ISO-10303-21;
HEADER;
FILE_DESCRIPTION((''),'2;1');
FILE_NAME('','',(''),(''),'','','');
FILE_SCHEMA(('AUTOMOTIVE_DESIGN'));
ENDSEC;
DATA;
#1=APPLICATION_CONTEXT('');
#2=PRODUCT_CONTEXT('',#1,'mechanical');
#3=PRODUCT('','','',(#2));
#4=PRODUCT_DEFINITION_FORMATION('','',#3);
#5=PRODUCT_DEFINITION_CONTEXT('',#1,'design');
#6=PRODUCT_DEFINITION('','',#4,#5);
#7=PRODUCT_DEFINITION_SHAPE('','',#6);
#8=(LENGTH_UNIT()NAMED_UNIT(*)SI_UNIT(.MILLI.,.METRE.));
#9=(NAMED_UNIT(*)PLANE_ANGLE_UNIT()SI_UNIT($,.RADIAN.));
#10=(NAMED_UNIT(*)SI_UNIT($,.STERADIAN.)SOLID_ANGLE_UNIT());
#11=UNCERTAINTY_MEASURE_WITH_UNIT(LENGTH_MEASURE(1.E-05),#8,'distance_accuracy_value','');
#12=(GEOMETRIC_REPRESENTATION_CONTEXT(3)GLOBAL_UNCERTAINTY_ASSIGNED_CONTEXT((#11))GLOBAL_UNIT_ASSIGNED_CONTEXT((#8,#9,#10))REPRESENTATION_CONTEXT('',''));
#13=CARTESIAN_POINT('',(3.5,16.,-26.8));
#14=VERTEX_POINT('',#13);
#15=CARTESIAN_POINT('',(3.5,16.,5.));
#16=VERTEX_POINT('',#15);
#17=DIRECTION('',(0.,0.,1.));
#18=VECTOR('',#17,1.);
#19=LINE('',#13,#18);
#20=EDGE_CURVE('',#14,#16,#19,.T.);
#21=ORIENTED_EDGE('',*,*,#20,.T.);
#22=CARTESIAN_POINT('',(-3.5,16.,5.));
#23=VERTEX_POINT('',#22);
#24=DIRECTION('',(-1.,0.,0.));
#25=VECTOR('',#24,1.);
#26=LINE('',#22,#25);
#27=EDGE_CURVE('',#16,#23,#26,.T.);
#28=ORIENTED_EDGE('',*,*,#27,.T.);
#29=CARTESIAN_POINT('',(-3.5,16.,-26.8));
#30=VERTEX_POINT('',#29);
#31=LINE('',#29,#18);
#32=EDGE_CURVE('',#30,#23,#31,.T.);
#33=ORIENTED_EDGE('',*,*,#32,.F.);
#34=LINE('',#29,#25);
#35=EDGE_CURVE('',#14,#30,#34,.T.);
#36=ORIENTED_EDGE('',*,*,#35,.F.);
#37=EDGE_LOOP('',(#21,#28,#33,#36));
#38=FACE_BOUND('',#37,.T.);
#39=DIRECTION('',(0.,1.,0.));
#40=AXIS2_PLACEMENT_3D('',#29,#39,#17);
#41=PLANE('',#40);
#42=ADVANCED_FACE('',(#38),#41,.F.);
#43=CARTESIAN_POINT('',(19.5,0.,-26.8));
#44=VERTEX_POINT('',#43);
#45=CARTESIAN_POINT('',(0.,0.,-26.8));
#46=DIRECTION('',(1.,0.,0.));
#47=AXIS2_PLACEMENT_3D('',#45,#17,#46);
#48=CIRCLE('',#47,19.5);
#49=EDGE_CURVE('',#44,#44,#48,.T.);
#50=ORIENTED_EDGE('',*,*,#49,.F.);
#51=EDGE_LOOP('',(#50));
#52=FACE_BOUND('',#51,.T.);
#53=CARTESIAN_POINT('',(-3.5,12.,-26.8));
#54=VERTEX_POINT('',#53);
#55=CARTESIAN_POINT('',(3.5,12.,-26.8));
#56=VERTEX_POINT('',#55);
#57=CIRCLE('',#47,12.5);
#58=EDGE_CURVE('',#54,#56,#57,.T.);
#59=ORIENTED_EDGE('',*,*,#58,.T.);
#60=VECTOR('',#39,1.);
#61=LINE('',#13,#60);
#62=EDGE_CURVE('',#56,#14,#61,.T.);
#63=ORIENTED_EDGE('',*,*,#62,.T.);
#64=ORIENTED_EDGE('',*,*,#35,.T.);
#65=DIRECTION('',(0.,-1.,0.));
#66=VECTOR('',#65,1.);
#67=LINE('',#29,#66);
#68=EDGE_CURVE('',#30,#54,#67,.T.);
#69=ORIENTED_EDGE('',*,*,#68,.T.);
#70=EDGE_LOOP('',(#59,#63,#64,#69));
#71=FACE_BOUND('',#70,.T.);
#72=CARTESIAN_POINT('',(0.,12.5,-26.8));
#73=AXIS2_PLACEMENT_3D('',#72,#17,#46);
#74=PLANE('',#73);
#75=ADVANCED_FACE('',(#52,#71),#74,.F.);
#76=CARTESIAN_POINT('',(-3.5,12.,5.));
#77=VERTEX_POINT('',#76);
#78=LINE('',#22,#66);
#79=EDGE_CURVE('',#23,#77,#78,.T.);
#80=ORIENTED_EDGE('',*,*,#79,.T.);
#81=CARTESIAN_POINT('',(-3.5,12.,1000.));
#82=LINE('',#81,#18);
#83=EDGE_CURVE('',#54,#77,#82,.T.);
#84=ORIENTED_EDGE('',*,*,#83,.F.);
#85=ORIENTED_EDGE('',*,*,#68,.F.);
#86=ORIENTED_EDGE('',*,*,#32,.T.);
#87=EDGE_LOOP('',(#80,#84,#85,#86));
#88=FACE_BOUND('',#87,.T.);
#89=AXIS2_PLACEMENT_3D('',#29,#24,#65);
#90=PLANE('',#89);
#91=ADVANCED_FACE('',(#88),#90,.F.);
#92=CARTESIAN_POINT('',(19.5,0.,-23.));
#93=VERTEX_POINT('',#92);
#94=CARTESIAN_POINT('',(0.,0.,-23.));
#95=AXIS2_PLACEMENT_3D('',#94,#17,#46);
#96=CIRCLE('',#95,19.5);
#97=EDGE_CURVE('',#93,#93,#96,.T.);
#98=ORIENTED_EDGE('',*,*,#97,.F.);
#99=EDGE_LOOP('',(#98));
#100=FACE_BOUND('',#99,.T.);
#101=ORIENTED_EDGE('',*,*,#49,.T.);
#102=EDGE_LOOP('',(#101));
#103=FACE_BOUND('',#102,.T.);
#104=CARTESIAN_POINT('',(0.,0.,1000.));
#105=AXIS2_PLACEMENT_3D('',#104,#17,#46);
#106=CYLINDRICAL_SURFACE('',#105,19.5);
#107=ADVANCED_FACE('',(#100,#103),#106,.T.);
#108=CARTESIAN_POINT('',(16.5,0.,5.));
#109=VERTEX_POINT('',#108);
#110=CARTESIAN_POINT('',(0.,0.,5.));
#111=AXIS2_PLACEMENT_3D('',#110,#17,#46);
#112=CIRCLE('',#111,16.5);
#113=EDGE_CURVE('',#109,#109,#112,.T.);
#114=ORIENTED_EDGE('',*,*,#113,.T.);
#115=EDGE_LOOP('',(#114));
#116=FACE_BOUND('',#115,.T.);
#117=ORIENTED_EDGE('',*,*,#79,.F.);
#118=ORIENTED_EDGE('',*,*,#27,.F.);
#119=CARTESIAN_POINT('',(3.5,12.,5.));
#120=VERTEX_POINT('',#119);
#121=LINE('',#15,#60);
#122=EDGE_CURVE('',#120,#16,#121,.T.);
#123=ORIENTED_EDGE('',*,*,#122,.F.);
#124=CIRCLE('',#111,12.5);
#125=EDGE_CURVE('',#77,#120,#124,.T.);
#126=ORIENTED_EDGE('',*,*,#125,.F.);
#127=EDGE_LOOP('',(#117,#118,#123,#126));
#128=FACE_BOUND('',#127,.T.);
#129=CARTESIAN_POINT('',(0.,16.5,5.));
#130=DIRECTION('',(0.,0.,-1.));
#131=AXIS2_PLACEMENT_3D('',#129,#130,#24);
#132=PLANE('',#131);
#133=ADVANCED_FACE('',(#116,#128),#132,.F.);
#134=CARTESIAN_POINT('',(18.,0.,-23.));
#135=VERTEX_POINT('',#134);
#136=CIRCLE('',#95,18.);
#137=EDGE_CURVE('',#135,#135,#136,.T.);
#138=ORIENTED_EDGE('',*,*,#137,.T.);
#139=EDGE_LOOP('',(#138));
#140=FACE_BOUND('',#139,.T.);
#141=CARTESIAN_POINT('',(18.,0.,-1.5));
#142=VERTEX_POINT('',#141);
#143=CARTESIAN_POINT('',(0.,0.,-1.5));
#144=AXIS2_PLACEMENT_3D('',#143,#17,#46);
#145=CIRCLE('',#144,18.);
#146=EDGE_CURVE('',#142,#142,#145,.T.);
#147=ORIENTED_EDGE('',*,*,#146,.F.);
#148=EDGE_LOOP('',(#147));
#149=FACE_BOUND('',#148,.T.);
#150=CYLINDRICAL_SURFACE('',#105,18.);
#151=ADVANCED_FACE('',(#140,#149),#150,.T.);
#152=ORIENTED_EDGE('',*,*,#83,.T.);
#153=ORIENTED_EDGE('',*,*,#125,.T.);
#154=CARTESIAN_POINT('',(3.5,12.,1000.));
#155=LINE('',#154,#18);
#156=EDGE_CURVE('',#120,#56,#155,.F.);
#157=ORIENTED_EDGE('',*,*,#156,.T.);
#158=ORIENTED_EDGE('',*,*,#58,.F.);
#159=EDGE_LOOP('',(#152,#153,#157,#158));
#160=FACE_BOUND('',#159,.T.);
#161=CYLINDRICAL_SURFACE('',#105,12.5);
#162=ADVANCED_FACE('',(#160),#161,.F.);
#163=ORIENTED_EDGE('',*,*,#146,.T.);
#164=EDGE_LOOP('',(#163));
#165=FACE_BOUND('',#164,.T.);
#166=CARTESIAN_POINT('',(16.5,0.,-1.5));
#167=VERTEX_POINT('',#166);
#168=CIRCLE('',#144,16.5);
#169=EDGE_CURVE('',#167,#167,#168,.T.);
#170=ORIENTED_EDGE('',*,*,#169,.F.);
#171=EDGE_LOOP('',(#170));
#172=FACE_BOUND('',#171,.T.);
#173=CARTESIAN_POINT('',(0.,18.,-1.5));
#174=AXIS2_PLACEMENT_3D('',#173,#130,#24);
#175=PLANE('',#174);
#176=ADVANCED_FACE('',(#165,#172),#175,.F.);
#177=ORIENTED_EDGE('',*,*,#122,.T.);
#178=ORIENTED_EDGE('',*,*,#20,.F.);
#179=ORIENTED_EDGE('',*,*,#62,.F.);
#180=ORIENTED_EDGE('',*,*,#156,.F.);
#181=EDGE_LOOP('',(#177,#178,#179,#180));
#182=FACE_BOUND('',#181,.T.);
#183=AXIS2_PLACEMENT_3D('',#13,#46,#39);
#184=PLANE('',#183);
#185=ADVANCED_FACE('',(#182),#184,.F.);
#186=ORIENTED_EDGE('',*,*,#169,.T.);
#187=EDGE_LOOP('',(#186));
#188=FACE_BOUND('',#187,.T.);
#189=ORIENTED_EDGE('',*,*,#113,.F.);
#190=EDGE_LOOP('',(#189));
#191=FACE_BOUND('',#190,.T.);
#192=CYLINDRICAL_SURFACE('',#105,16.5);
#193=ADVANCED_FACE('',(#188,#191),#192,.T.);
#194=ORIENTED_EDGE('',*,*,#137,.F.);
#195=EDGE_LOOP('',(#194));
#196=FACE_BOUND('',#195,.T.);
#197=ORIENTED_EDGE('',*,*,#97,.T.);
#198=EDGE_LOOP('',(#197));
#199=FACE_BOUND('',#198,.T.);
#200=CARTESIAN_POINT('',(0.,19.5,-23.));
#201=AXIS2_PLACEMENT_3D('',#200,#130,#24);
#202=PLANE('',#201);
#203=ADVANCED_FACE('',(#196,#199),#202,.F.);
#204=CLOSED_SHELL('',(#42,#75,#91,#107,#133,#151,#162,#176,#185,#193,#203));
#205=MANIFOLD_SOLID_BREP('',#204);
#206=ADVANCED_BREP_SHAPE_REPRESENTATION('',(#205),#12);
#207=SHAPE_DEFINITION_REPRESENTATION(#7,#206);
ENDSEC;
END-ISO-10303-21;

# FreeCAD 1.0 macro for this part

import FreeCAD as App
import Part
import Sketcher
from FreeCAD import Vector
Q = App.Units.Quantity


def add_polygon(sketch, points):
    """Adds a closed chain of lines whose ends are joined by coincident constraints."""
    first, n = sketch.GeometryCount, len(points)
    for a, b in zip(points, points[1:] + points[:1]):
        sketch.addGeometry(Part.LineSegment(App.Vector(*a, 0), App.Vector(*b, 0)), False)
    for i in range(n):
        sketch.addConstraint(Sketcher.Constraint("Coincident", first + i, 2, first + (i + 1) % n, 1))

doc = App.newDocument("Part")
body = doc.addObject("PartDesign::Body", "Body")

# Sketch on YZ plane
sketch1 = body.newObject("Sketcher::SketchObject", "Sketch")
sketch1.AttachmentSupport = (doc.getObject("YZ_Plane"), [""])
sketch1.MapMode = "FlatFace"
add_polygon(sketch1, [(12.5, 5), (12.5, -26.8), (19.5, -26.8), (19.5, -23), (18, -23), (18, -1.5), (16.5, -1.5), (16.5, 5)])  # lines 0-7
sketch1.addConstraint([
    Sketcher.Constraint("Vertical", 0),
    Sketcher.Constraint("Horizontal", 1),
    Sketcher.Constraint("Vertical", 2),
    Sketcher.Constraint("Horizontal", 3),
    Sketcher.Constraint("Vertical", 4),
    Sketcher.Constraint("Horizontal", 5),
    Sketcher.Constraint("Vertical", 6),
    Sketcher.Constraint("Horizontal", 7),
    Sketcher.Constraint("Equal", 3, 5),
    Sketcher.Constraint("DistanceX", 1, 1, 1, 2, Q("7 mm")),
    Sketcher.Constraint("DistanceX", 7, 2, 7, 1, Q("4 mm")),
    Sketcher.Constraint("DistanceY", 0, 2, 0, 1, Q("31.8 mm")),
    Sketcher.Constraint("DistanceY", 2, 1, 2, 2, Q("3.8 mm")),
    Sketcher.Constraint("DistanceY", 4, 1, 4, 2, Q("21.5 mm")),
    Sketcher.Constraint("DistanceY", 2, 2, -1, 1, Q("23 mm")),
    Sketcher.Constraint("DistanceX", -1, 1, 3, 2, Q("18 mm")),
])
revolution = body.newObject("PartDesign::Revolution", "Revolution")
revolution.Profile = sketch1
revolution.ReferenceAxis = (sketch1, ["V_Axis"])
revolution.Angle = 360

# Sketch on XY plane
sketch2 = body.newObject("Sketcher::SketchObject", "Sketch001")
sketch2.AttachmentSupport = (doc.getObject("XY_Plane"), [""])
sketch2.MapMode = "FlatFace"
sketch2.AttachmentOffset = App.Placement(Vector(0, 0, 5), App.Rotation())
add_polygon(sketch2, [(-3.5, 16), (-3.5, 9), (3.5, 9), (3.5, 16)])  # lines 0-3
sketch2.addConstraint([
    Sketcher.Constraint("Vertical", 0),
    Sketcher.Constraint("Horizontal", 1),
    Sketcher.Constraint("Vertical", 2),
    Sketcher.Constraint("Horizontal", 3),
    Sketcher.Constraint("Equal", 3, 0),
    Sketcher.Constraint("DistanceX", 1, 1, 1, 2, Q("7 mm")),
    Sketcher.Constraint("DistanceY", -1, 1, 0, 2, Q("9 mm")),
    Sketcher.Constraint("DistanceX", 0, 2, -1, 1, Q("3.5 mm")),
])
pocket1 = body.newObject("PartDesign::Pocket", "Pocket")
pocket1.Profile = sketch2
pocket1.Type = "ThroughAll"

doc.recompute()
